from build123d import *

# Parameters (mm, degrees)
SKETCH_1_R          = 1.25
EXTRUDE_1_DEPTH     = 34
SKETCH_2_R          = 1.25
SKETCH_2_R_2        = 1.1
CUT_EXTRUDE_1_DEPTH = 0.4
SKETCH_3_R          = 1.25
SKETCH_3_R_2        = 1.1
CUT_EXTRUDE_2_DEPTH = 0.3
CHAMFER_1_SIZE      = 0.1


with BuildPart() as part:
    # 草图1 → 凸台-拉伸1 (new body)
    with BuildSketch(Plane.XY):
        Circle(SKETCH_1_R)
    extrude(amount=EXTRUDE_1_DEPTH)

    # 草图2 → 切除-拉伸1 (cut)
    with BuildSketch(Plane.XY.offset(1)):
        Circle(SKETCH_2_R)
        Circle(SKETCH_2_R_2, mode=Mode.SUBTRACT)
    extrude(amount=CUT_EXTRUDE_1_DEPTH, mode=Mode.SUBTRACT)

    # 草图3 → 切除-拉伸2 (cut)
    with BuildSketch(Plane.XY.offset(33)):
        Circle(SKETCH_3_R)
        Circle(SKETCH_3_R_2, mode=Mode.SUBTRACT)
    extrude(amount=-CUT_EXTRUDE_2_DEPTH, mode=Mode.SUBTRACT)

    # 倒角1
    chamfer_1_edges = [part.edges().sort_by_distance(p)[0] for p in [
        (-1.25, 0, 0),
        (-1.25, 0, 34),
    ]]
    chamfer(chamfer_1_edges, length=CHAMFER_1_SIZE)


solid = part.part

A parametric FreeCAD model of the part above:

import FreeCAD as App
import Part
import Sketcher
from FreeCAD import Vector
Q = App.Units.Quantity


def edges_at(feature, points):
    """Names of the edges that pass closest to the given points."""
    edges = feature.Shape.Edges
    near = lambda p: min(range(len(edges)), key=lambda i: edges[i].distToShape(Part.Vertex(*p))[0])
    return sorted({f"Edge{near(p) + 1}" for p in points})

doc = App.newDocument("Part")
body = doc.addObject("PartDesign::Body", "Body")

sketch1 = body.newObject("Sketcher::SketchObject", "Sketch")
sketch1.AttachmentSupport = (doc.getObject("XY_Plane"), [""])
sketch1.MapMode = "FlatFace"
sketch1.addGeometry(Part.Circle(Vector(0, 0, 0), Vector(0, 0, 1), 1.25), False)
sketch1.addConstraint(Sketcher.Constraint("Coincident", 0, 3, -1, 1))
sketch1.addConstraint(Sketcher.Constraint("Diameter", 0, Q("2.5 mm")))
pad1 = body.newObject("PartDesign::Pad", "Pad")
pad1.Profile = sketch1
pad1.Length = 34

sketch2 = body.newObject("Sketcher::SketchObject", "Sketch001")
sketch2.AttachmentSupport = (doc.getObject("XY_Plane"), [""])
sketch2.MapMode = "FlatFace"
sketch2.AttachmentOffset = App.Placement(Vector(0, 0, 1), App.Rotation())
sketch2.addGeometry(Part.Circle(Vector(0, 0, 0), Vector(0, 0, 1), 1.25), False)
sketch2.addGeometry(Part.Circle(Vector(0, 0, 0), Vector(0, 0, 1), 1.1), False)
sketch2.addConstraint(Sketcher.Constraint("Coincident", 0, 3, -1, 1))
sketch2.addConstraint(Sketcher.Constraint("Coincident", 1, 3, -1, 1))
sketch2.addConstraint(Sketcher.Constraint("Diameter", 0, Q("2.5 mm")))
sketch2.addConstraint(Sketcher.Constraint("Diameter", 1, Q("2.2 mm")))
pocket1 = body.newObject("PartDesign::Pocket", "Pocket")
pocket1.Profile = sketch2
pocket1.Length = 0.4
pocket1.Reversed = True

sketch3 = body.newObject("Sketcher::SketchObject", "Sketch002")
sketch3.AttachmentSupport = (doc.getObject("XY_Plane"), [""])
sketch3.MapMode = "FlatFace"
sketch3.AttachmentOffset = App.Placement(Vector(0, 0, 33), App.Rotation())
sketch3.addGeometry(Part.Circle(Vector(0, 0, 0), Vector(0, 0, 1), 1.25), False)
sketch3.addGeometry(Part.Circle(Vector(0, 0, 0), Vector(0, 0, 1), 1.1), False)
sketch3.addConstraint(Sketcher.Constraint("Coincident", 0, 3, -1, 1))
sketch3.addConstraint(Sketcher.Constraint("Coincident", 1, 3, -1, 1))
sketch3.addConstraint(Sketcher.Constraint("Diameter", 0, Q("2.5 mm")))
sketch3.addConstraint(Sketcher.Constraint("Diameter", 1, Q("2.2 mm")))
pocket2 = body.newObject("PartDesign::Pocket", "Pocket001")
pocket2.Profile = sketch3
pocket2.Length = 0.3
doc.recompute()

chamfer = body.newObject("PartDesign::Chamfer", "Chamfer")
chamfer.Base = (pocket2, edges_at(pocket2, [(-1.25, 0, 0), (-1.25, 0, 34)]))
chamfer.Size = 0.1

doc.recompute()
